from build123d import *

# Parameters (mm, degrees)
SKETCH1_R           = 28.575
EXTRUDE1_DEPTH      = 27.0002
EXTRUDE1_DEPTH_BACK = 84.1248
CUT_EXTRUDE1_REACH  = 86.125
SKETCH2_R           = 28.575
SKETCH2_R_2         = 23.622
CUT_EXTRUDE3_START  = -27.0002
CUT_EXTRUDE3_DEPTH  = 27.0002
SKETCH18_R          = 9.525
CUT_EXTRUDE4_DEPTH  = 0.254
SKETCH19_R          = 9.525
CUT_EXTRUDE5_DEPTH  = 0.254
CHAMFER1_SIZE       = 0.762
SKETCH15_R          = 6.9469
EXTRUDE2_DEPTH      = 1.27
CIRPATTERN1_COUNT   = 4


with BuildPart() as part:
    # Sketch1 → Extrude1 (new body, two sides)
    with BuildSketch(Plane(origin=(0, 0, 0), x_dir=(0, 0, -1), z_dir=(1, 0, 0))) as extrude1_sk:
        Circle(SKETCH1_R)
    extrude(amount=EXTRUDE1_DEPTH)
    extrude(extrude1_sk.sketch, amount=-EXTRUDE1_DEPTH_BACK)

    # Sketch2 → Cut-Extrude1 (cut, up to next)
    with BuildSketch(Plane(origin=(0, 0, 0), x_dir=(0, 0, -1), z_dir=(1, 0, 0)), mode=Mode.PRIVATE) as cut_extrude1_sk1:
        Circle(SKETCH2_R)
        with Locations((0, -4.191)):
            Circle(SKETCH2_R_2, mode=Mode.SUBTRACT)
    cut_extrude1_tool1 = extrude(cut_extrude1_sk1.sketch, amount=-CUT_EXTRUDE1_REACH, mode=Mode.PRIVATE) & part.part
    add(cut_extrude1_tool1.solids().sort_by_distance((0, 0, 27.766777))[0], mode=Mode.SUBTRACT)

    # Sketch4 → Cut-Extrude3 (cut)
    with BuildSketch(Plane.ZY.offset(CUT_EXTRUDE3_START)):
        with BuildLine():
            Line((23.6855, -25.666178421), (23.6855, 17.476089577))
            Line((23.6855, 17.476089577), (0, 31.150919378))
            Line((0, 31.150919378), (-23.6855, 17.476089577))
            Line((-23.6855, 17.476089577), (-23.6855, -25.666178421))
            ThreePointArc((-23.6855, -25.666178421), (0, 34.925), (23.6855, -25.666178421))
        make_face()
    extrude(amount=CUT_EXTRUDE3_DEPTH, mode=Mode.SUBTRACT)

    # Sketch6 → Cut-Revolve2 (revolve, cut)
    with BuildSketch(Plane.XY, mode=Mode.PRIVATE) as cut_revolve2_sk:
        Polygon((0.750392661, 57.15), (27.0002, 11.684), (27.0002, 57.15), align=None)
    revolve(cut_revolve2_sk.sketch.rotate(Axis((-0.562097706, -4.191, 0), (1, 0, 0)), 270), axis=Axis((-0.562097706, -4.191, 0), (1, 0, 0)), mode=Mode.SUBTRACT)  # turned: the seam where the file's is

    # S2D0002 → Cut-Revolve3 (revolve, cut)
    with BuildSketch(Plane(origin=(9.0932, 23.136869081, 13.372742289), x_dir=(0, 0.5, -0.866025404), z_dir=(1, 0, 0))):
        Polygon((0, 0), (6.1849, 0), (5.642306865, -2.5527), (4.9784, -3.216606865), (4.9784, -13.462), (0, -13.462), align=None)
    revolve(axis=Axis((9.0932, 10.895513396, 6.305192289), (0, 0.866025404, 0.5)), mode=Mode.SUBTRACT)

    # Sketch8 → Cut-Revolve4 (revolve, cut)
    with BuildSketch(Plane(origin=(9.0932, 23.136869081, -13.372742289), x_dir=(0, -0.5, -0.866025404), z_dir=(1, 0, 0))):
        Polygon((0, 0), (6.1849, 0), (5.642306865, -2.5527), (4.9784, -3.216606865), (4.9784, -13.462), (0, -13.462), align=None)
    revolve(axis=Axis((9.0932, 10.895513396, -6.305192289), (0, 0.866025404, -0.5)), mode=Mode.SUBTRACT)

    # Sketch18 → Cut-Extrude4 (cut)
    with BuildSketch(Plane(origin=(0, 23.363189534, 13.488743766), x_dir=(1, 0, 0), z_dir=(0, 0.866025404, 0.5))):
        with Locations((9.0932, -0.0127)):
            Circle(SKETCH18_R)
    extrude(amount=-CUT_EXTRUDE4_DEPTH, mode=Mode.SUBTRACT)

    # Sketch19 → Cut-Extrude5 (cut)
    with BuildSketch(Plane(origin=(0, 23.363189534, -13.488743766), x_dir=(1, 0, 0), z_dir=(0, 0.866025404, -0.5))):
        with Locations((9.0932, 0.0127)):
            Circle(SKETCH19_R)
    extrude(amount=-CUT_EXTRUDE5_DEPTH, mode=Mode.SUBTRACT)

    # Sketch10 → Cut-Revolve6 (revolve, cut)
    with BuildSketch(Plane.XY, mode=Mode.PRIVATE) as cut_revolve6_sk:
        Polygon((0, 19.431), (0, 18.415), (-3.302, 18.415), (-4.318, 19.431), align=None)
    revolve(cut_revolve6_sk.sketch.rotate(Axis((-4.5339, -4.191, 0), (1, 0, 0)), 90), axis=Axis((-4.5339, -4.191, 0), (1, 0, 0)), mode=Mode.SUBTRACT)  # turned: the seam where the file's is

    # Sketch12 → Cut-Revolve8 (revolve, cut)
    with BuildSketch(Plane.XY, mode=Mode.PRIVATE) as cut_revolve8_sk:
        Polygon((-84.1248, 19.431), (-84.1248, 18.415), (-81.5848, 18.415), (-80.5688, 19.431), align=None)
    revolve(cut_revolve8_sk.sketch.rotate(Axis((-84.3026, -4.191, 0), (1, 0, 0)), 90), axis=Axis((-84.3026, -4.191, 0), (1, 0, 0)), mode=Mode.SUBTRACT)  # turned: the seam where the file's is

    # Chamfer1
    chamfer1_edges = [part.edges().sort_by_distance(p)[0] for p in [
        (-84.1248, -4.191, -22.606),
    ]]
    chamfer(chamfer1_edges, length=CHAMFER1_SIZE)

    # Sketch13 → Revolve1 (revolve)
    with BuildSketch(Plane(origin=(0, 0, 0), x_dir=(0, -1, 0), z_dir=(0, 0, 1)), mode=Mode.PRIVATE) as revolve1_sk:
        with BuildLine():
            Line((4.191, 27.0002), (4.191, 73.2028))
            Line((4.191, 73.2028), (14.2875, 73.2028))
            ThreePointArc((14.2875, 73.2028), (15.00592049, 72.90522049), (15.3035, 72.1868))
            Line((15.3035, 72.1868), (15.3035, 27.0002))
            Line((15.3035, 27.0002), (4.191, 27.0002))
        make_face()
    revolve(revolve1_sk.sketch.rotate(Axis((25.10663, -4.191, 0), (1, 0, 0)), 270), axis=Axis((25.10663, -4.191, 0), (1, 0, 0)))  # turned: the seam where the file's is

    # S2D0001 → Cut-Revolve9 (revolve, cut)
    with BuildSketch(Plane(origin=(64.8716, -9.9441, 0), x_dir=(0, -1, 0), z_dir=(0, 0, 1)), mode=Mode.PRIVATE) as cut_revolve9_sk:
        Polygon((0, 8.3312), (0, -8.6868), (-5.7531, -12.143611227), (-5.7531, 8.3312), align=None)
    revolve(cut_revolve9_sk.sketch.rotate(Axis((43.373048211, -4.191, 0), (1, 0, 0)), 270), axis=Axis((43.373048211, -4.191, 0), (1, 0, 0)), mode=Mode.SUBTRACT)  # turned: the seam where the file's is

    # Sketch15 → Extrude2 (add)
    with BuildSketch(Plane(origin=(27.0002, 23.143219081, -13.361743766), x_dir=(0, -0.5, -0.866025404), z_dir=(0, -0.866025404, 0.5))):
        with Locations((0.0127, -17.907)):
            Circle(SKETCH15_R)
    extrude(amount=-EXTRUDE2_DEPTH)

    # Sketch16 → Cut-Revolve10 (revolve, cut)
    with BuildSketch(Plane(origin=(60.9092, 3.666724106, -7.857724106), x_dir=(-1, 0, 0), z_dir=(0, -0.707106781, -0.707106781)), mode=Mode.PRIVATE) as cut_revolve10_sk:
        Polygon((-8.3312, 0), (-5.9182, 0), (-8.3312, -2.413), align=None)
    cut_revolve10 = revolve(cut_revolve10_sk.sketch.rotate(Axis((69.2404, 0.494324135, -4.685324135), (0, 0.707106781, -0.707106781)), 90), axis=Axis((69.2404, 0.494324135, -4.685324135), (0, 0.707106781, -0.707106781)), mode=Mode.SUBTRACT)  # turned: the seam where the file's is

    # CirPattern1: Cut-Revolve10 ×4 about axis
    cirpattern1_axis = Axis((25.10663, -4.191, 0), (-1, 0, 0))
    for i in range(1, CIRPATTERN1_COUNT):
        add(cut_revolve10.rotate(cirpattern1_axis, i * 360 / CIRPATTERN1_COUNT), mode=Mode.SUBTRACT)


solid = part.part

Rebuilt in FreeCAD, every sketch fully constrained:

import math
import FreeCAD as App
import Part
import Sketcher

V = App.Vector
Q = App.Units.Quantity


def edges_at(feature, points):
    """Names of the edges that pass closest to the given points."""
    edges = feature.Shape.Edges
    near = lambda p: min(range(len(edges)), key=lambda i: edges[i].distToShape(Part.Vertex(*p))[0])
    return sorted({f"Edge{near(p) + 1}" for p in points})


def add_polygon(sketch, points):
    """Adds a closed chain of lines whose ends are joined by coincident constraints."""
    first, n = sketch.GeometryCount, len(points)
    for a, b in zip(points, points[1:] + points[:1]):
        sketch.addGeometry(Part.LineSegment(App.Vector(*a, 0), App.Vector(*b, 0)), False)
    for i in range(n):
        sketch.addConstraint(Sketcher.Constraint("Coincident", first + i, 2, first + (i + 1) % n, 1))

doc = App.newDocument("Part")
body = doc.addObject("PartDesign::Body", "Body")

# Sketch on YZ plane
sketch1 = doc.addObject("Sketcher::SketchObject", "Sketch")
body.addObject(sketch1)
sketch1.AttachmentSupport = (doc.YZ_Plane, [""])
sketch1.MapMode = "FlatFace"
sketch1.addGeometry(Part.Circle(V(0, 0, 0), V(0, 0, 1), 29), False)
sketch1.addConstraint([
    Sketcher.Constraint("Coincident", 0, 3, -1, 1),
    Sketcher.Constraint("Diameter", 0, Q("2.25 in")),
])
pad1 = doc.addObject("PartDesign::Pad", "Pad")
body.addObject(pad1)
pad1.Profile = sketch1
pad1.Type = "TwoLengths"
pad1.Length = Q("1.063 in")
pad1.Length2 = Q("3.312 in")

# Sketch on YZ plane
sketch2 = doc.addObject("Sketcher::SketchObject", "Sketch001")
body.addObject(sketch2)
sketch2.AttachmentSupport = (doc.YZ_Plane, [""])
sketch2.MapMode = "FlatFace"
sketch2.addGeometry([
    Part.Circle(V(0, 0, 0), V(0, 0, 1), 29),
    Part.Circle(V(-4, 0, 0), V(0, 0, 1), 24),
], False)
sketch2.addConstraint([
    Sketcher.Constraint("Coincident", 0, 3, -1, 1),
    Sketcher.Constraint("PointOnObject", 1, 3, -1),
    Sketcher.Constraint("Diameter", 0, Q("2.25 in")),
    Sketcher.Constraint("Diameter", 1, Q("1.86 in")),
    Sketcher.Constraint("DistanceX", 1, 3, -1, 1, Q("0.165 in")),
])
pocket1 = doc.addObject("PartDesign::Pocket", "Pocket")
body.addObject(pocket1)
pocket1.Profile = sketch2
pocket1.Type = "UpToFirst"

# Sketch on YZ plane
sketch3 = doc.addObject("Sketcher::SketchObject", "Sketch002")
body.addObject(sketch3)
sketch3.AttachmentSupport = (doc.YZ_Plane, [""])
sketch3.MapMode = "FlatFace"
sketch3.AttachmentOffset = App.Placement(V(0, 0, 1.063 * 25.4), App.Rotation())
sketch3.addGeometry([
    Part.LineSegment(V(17, 24, 0), V(-26, 24, 0)),  # 0
    Part.ArcOfCircle(Part.Circle(V(0, 0, 0), V(0, 0, 1), 35), math.radians(-137), math.radians(137)),  # 1
    Part.LineSegment(V(-26, -24, 0), V(17, -24, 0)),  # 2
    Part.LineSegment(V(17, -24, 0), V(31, 0, 0)),  # 3
    Part.LineSegment(V(31, 0, 0), V(17, 24, 0)),  # 4
], False)
sketch3.addConstraint([
    Sketcher.Constraint("Coincident", 0, 2, 1, 2),
    Sketcher.Constraint("Coincident", 1, 1, 2, 1),
    Sketcher.Constraint("Coincident", 2, 2, 3, 1),
    Sketcher.Constraint("Coincident", 3, 2, 4, 1),
    Sketcher.Constraint("Coincident", 4, 2, 0, 1),
    Sketcher.Constraint("Horizontal", 0),
    Sketcher.Constraint("Horizontal", 2),
    Sketcher.Constraint("Coincident", 1, 3, -1, 1),
    Sketcher.Constraint("Symmetric", 2, 2, 4, 2, -1),
    Sketcher.Constraint("PointOnObject", 3, 2, -1),
    Sketcher.Constraint("Angle", 3, Q("60 deg")),
    Sketcher.Constraint("Radius", 1, Q("1.375 in")),
    Sketcher.Constraint("DistanceY", 1, 1, 0, 2, Q("1.865 in")),
    Sketcher.Constraint("DistanceX", 0, 2, 0, 1, 43.142268),
])
pocket2 = doc.addObject("PartDesign::Pocket", "Pocket001")
body.addObject(pocket2)
pocket2.Profile = sketch3
pocket2.Length = Q("1.063 in")

# Sketch on XY plane
sketch4 = doc.addObject("Sketcher::SketchObject", "Sketch003")
body.addObject(sketch4)
sketch4.AttachmentSupport = (doc.XY_Plane, [""])
sketch4.MapMode = "FlatFace"
add_polygon(sketch4, [(1, 57), (27, 12), (27, 57)])  # lines 0-2
sketch4.addGeometry(Part.LineSegment(V(1, -4, 0), V(27, -4, 0)), True)  # axis
sketch4.addConstraint([
    Sketcher.Constraint("Vertical", 1),
    Sketcher.Constraint("Horizontal", 2),
    Sketcher.Constraint("Horizontal", 3),
    Sketcher.Constraint("Vertical", 2, 2, 3, 1),
    Sketcher.Constraint("Vertical", 1, 2, 3, 2),
    Sketcher.Constraint("Angle", 0, Q("-60 deg")),
    Sketcher.Constraint("DistanceY", 1, 1, 1, 2, Q("1.79 in")),
    Sketcher.Constraint("DistanceY", -1, 1, 0, 2, Q("0.46 in")),
    Sketcher.Constraint("DistanceX", -1, 1, 0, 2, Q("1.063 in")),
    Sketcher.Constraint("DistanceY", 3, 1, -1, 1, Q("0.165 in")),
])
groove = doc.addObject("PartDesign::Groove", "Groove")
body.addObject(groove)
groove.Profile = sketch4
groove.ReferenceAxis = (sketch4, ["Axis0"])
groove.Angle = 360

# Sketch on YZ plane
sketch5 = doc.addObject("Sketcher::SketchObject", "Sketch004")
body.addObject(sketch5)
sketch5.AttachmentSupport = (doc.YZ_Plane, [""])
sketch5.MapMode = "FlatFace"
sketch5.AttachmentOffset = App.Placement(V(0, 0, 0.358 * 25.4), App.Rotation())
add_polygon(sketch5, [(26.2, 8), (23.1, 13.4), (11.5, 6.6), (14, 2.3), (22.8, 7.5), (23.7, 7.2)])  # lines 0-5
sketch5.addGeometry(Part.LineSegment(V(11.5, 6.6, 0), V(23.1, 13.4, 0)), True)  # axis
sketch5.addConstraint([
    Sketcher.Constraint("Coincident", 6, 1, 1, 2),
    Sketcher.Constraint("Coincident", 6, 2, 0, 2),
    Sketcher.Constraint("Perpendicular", 0, 1),
    Sketcher.Constraint("Perpendicular", 1, 2),
    Sketcher.Constraint("Perpendicular", 2, 3),
    Sketcher.Constraint("Angle", 0, Q("120 deg")),
    Sketcher.Constraint("Angle", 4, Q("-15 deg")),
    Sketcher.Constraint("Angle", 5, Q("18 deg")),
    Sketcher.Constraint("Distance", 1, Q("0.53 in")),
    Sketcher.Constraint("Distance", 2, Q("0.196 in")),
    Sketcher.Constraint("Distance", 0, Q("0.2435 in")),
    Sketcher.Constraint("DistanceX", 4, 2, 5, 2, 2.482),
    Sketcher.Constraint("DistanceX", -1, 1, 0, 2, 23.136869),
    Sketcher.Constraint("DistanceY", -1, 1, 2, 2, 2.330321),
])
groove2 = doc.addObject("PartDesign::Groove", "Groove001")
body.addObject(groove2)
groove2.Profile = sketch5
groove2.ReferenceAxis = (sketch5, ["Axis0"])
groove2.Angle = 360

# Sketch on YZ plane
sketch6 = doc.addObject("Sketcher::SketchObject", "Sketch005")
body.addObject(sketch6)
sketch6.AttachmentSupport = (doc.YZ_Plane, [""])
sketch6.MapMode = "FlatFace"
sketch6.AttachmentOffset = App.Placement(V(0, 0, 0.358 * 25.4), App.Rotation())
add_polygon(sketch6, [(20, -18.7), (23.1, -13.4), (11.5, -6.6), (9, -11), (17.9, -16.1), (18.1, -17)])  # lines 0-5
sketch6.addGeometry(Part.LineSegment(V(11.5, -6.6, 0), V(23.1, -13.4, 0)), True)  # axis
sketch6.addConstraint([
    Sketcher.Constraint("Coincident", 6, 1, 1, 2),
    Sketcher.Constraint("Coincident", 6, 2, 0, 2),
    Sketcher.Constraint("Perpendicular", 0, 1),
    Sketcher.Constraint("Perpendicular", 1, 2),
    Sketcher.Constraint("Perpendicular", 2, 3),
    Sketcher.Constraint("Angle", 0, Q("60 deg")),
    Sketcher.Constraint("Angle", 4, Q("-75 deg")),
    Sketcher.Constraint("Angle", 5, Q("-42 deg")),
    Sketcher.Constraint("Distance", 1, Q("0.53 in")),
    Sketcher.Constraint("Distance", 2, Q("0.196 in")),
    Sketcher.Constraint("Distance", 0, Q("0.2435 in")),
    Sketcher.Constraint("Distance", 5, 2.609729),
    Sketcher.Constraint("DistanceX", -1, 1, 0, 2, 23.136869),
    Sketcher.Constraint("DistanceY", 3, 2, -1, 1, 16.07586),
])
groove3 = doc.addObject("PartDesign::Groove", "Groove002")
body.addObject(groove3)
groove3.Profile = sketch6
groove3.ReferenceAxis = (sketch6, ["Axis0"])
groove3.Angle = 360

# Sketch on an angled plane
sketch7 = doc.addObject("Sketcher::SketchObject", "Sketch006")
body.addObject(sketch7)
sketch7.Placement = App.Placement(V(0, 23.36319, 13.488744), App.Rotation(V(1, 0, 0), V(0, 0.5, -0.866025404), V(0, 0.866025404, 0.5), "ZXY"))
sketch7.addGeometry(Part.Circle(V(9, 0, 0), V(0, 0, 1), 10), False)
sketch7.addConstraint([
    Sketcher.Constraint("Diameter", 0, Q("0.75 in")),
    Sketcher.Constraint("DistanceX", -1, 1, 0, 3, Q("0.358 in")),
    Sketcher.Constraint("DistanceY", 0, 3, -1, 1, Q("0.0005 in")),
])
pocket3 = doc.addObject("PartDesign::Pocket", "Pocket002")
body.addObject(pocket3)
pocket3.Profile = sketch7
pocket3.Length = Q("0.01 in")

# Sketch on an angled plane
sketch8 = doc.addObject("Sketcher::SketchObject", "Sketch007")
body.addObject(sketch8)
sketch8.Placement = App.Placement(V(0, 23.36319, -13.488744), App.Rotation(V(1, 0, 0), V(0, -0.5, -0.866025404), V(0, 0.866025404, -0.5), "ZXY"))
sketch8.addGeometry(Part.Circle(V(9, 0, 0), V(0, 0, 1), 10), False)
sketch8.addConstraint([
    Sketcher.Constraint("Diameter", 0, Q("0.75 in")),
    Sketcher.Constraint("DistanceX", -1, 1, 0, 3, Q("0.358 in")),
    Sketcher.Constraint("DistanceY", -1, 1, 0, 3, Q("0.0005 in")),
])
pocket4 = doc.addObject("PartDesign::Pocket", "Pocket003")
body.addObject(pocket4)
pocket4.Profile = sketch8
pocket4.Length = Q("0.01 in")

# Sketch on XY plane
sketch9 = doc.addObject("Sketcher::SketchObject", "Sketch008")
body.addObject(sketch9)
sketch9.AttachmentSupport = (doc.XY_Plane, [""])
sketch9.MapMode = "FlatFace"
add_polygon(sketch9, [(0, 18.4), (0, 19.4), (-4.3, 19.4), (-3.3, 18.4)])  # lines 0-3
sketch9.addGeometry(Part.LineSegment(V(-4.3, -4.2, 0), V(0, -4.2, 0)), True)  # axis
sketch9.addConstraint([
    Sketcher.Constraint("Vertical", 0),
    Sketcher.Constraint("Horizontal", 1),
    Sketcher.Constraint("Horizontal", 3),
    Sketcher.Constraint("Horizontal", 4),
    Sketcher.Constraint("PointOnObject", 0, 2, -2),
    Sketcher.Constraint("PointOnObject", 4, 2, -2),
    Sketcher.Constraint("Vertical", 1, 2, 4, 1),
    Sketcher.Constraint("Angle", 2, Q("-45 deg")),
    Sketcher.Constraint("DistanceX", 1, 2, 1, 1, Q("0.17 in")),
    Sketcher.Constraint("DistanceX", 3, 1, 3, 2, Q("0.13 in")),
    Sketcher.Constraint("DistanceY", 4, 1, 2, 2, Q("0.89 in")),
    Sketcher.Constraint("DistanceY", -1, 1, 0, 2, Q("0.765 in")),
])
groove4 = doc.addObject("PartDesign::Groove", "Groove003")
body.addObject(groove4)
groove4.Profile = sketch9
groove4.ReferenceAxis = (sketch9, ["Axis0"])
groove4.Angle = 360

# Sketch on XY plane
sketch10 = doc.addObject("Sketcher::SketchObject", "Sketch009")
body.addObject(sketch10)
sketch10.AttachmentSupport = (doc.XY_Plane, [""])
sketch10.MapMode = "FlatFace"
add_polygon(sketch10, [(-84.1, 19.4), (-84.1, 18.4), (-81.6, 18.4), (-80.6, 19.4)])  # lines 0-3
sketch10.addGeometry(Part.LineSegment(V(-84.1, -4.2, 0), V(-80.6, -4.2, 0)), True)  # axis
sketch10.addConstraint([
    Sketcher.Constraint("Vertical", 0),
    Sketcher.Constraint("Horizontal", 1),
    Sketcher.Constraint("Horizontal", 3),
    Sketcher.Constraint("Horizontal", 4),
    Sketcher.Constraint("Vertical", 3, 2, 4, 1),
    Sketcher.Constraint("Vertical", 2, 2, 4, 2),
    Sketcher.Constraint("DistanceX", 1, 1, 1, 2, Q("0.1 in")),
    Sketcher.Constraint("Angle", 2, Q("45 deg")),
    Sketcher.Constraint("DistanceX", 3, 2, 3, 1, Q("0.14 in")),
    Sketcher.Constraint("DistanceY", 4, 1, 0, 2, Q("0.89 in")),
    Sketcher.Constraint("DistanceX", 0, 2, -1, 1, Q("3.312 in")),
    Sketcher.Constraint("DistanceY", -1, 1, 0, 2, Q("0.725 in")),
])
groove5 = doc.addObject("PartDesign::Groove", "Groove004")
body.addObject(groove5)
groove5.Profile = sketch10
groove5.ReferenceAxis = (sketch10, ["Axis0"])
groove5.Angle = 360
doc.recompute()

chamfer = doc.addObject("PartDesign::Chamfer", "Chamfer")
body.addObject(chamfer)
chamfer.Base = (groove5, edges_at(groove5, [(-84.125, -4.191, -22.606)]))
chamfer.Size = Q("0.03 in")

# Sketch on XY plane
sketch11 = doc.addObject("Sketcher::SketchObject", "Sketch010")
body.addObject(sketch11)
sketch11.AttachmentSupport = (doc.XY_Plane, [""])
sketch11.MapMode = "FlatFace"
sketch11.addGeometry([
    Part.LineSegment(V(73.2, -4.2, 0), V(27, -4.2, 0)),  # 0
    Part.LineSegment(V(27, -4.2, 0), V(27, -15.3, 0)),  # 1
    Part.LineSegment(V(27, -15.3, 0), V(72.2, -15.3, 0)),  # 2
    Part.ArcOfCircle(Part.Circle(V(72.2, -14.3, 0), V(0, 0, 1), 1), math.radians(-90), math.radians(0)),  # 3
    Part.LineSegment(V(73.2, -14.3, 0), V(73.2, -4.2, 0)),  # 4
], False)
sketch11.addGeometry(Part.LineSegment(V(27, -4.2, 0), V(73.2, -4.2, 0)), True)  # axis
sketch11.addConstraint([
    Sketcher.Constraint("Coincident", 0, 2, 1, 1),
    Sketcher.Constraint("Coincident", 1, 2, 2, 1),
    Sketcher.Constraint("Tangent", 2, 2, 3, 1),
    Sketcher.Constraint("Tangent", 3, 2, 4, 1),
    Sketcher.Constraint("Coincident", 4, 2, 0, 1),
    Sketcher.Constraint("Horizontal", 0),
    Sketcher.Constraint("Vertical", 1),
    Sketcher.Constraint("Horizontal", 2),
    Sketcher.Constraint("Vertical", 4),
    Sketcher.Constraint("Horizontal", 5),
    Sketcher.Constraint("Coincident", 5, 1, 0, 2),
    Sketcher.Constraint("Vertical", 3, 2, 5, 2),
    Sketcher.Constraint("Radius", 3, Q("0.04 in")),
    Sketcher.Constraint("DistanceX", 0, 2, 0, 1, Q("1.819 in")),
    Sketcher.Constraint("DistanceY", 1, 2, 1, 1, Q("0.4375 in")),
    Sketcher.Constraint("DistanceX", -1, 1, 3, 3, Q("2.842 in")),
    Sketcher.Constraint("DistanceY", 3, 3, -1, 1, Q("0.5625 in")),
])
revolution = doc.addObject("PartDesign::Revolution", "Revolution")
body.addObject(revolution)
revolution.Profile = sketch11
revolution.ReferenceAxis = (sketch11, ["Axis0"])
revolution.Angle = 360

# Sketch on XY plane
sketch12 = doc.addObject("Sketcher::SketchObject", "Sketch011")
body.addObject(sketch12)
sketch12.AttachmentSupport = (doc.XY_Plane, [""])
sketch12.MapMode = "FlatFace"
add_polygon(sketch12, [(56, -10), (73, -10), (73, -4), (53, -4)])  # lines 0-3
sketch12.addGeometry(Part.LineSegment(V(53, -4, 0), V(73, -4, 0)), True)  # axis
sketch12.addConstraint([
    Sketcher.Constraint("Horizontal", 0),
    Sketcher.Constraint("Vertical", 1),
    Sketcher.Constraint("Horizontal", 2),
    Sketcher.Constraint("Horizontal", 4),
    Sketcher.Constraint("Coincident", 4, 1, 2, 2),
    Sketcher.Constraint("Vertical", 0, 2, 4, 2),
    Sketcher.Constraint("Angle", 3, Q("-59 deg")),
    Sketcher.Constraint("DistanceX", 0, 1, 0, 2, Q("0.67 in")),
    Sketcher.Constraint("DistanceY", 1, 1, 1, 2, Q("0.2265 in")),
    Sketcher.Constraint("DistanceX", -1, 1, 0, 2, Q("2.882 in")),
    Sketcher.Constraint("DistanceY", 1, 2, -1, 1, Q("0.165 in")),
])
groove6 = doc.addObject("PartDesign::Groove", "Groove005")
body.addObject(groove6)
groove6.Profile = sketch12
groove6.ReferenceAxis = (sketch12, ["Axis0"])
groove6.Angle = 360

# Sketch on an angled plane
sketch13 = doc.addObject("Sketcher::SketchObject", "Sketch012")
body.addObject(sketch13)
sketch13.Placement = App.Placement(V(27.0002, 23.143219, -13.361744), App.Rotation(V(0, -0.5, -0.866025404), V(1, 0, 0), V(0, -0.866025404, 0.5), "ZXY"))
sketch13.addGeometry(Part.Circle(V(0, -18, 0), V(0, 0, 1), 7), False)
sketch13.addConstraint([
    Sketcher.Constraint("Diameter", 0, Q("0.547 in")),
    Sketcher.Constraint("DistanceY", 0, 3, -1, 1, Q("0.705 in")),
    Sketcher.Constraint("DistanceX", -1, 1, 0, 3, Q("0.0005 in")),
])
pad2 = doc.addObject("PartDesign::Pad", "Pad001")
body.addObject(pad2)
pad2.Profile = sketch13
pad2.Length = Q("0.05 in")
pad2.Reversed = True

# Sketch on an angled plane
sketch14 = doc.addObject("Sketcher::SketchObject", "Sketch013")
body.addObject(sketch14)
sketch14.Placement = App.Placement(V(60.9092, 3.666724, -7.857724), App.Rotation(V(-1, 0, 0), V(0, 0.707106781, -0.707106781), V(0, -0.707106781, -0.707106781), "ZXY"))
add_polygon(sketch14, [(-5.9, 0), (-8.3, 0), (-8.3, -2.4)])  # lines 0-2
sketch14.addGeometry(Part.LineSegment(V(-8.3, -2.4, 0), V(-8.3, 0, 0)), True)  # axis
sketch14.addConstraint([
    Sketcher.Constraint("Horizontal", 0),
    Sketcher.Constraint("Vertical", 1),
    Sketcher.Constraint("Vertical", 3),
    Sketcher.Constraint("Coincident", 3, 1, 1, 2),
    Sketcher.Constraint("PointOnObject", 0, 2, -1),
    Sketcher.Constraint("PointOnObject", 3, 2, -1),
    Sketcher.Constraint("Equal", 0, 1),
    Sketcher.Constraint("DistanceX", 0, 2, 0, 1, Q("0.095 in")),
    Sketcher.Constraint("DistanceX", 0, 2, -1, 1, Q("0.328 in")),
])
groove7 = doc.addObject("PartDesign::Groove", "Groove006")
body.addObject(groove7)
groove7.Profile = sketch14
groove7.ReferenceAxis = (sketch14, ["Axis0"])
groove7.Angle = 360
doc.recompute()

datumline = doc.addObject("PartDesign::Line", "DatumLine")
body.addObject(datumline)
datumline.Placement = App.Placement(V(0, -4.191, 0), App.Rotation(V(0, 0, 1), V(-1, 0, 0)))
polarpattern = doc.addObject("PartDesign::PolarPattern", "PolarPattern")
body.addObject(polarpattern)
polarpattern.Originals = [groove7]
polarpattern.Axis = (datumline, [""])
polarpattern.Angle = 360
polarpattern.Occurrences = 4
body.Tip = polarpattern

doc.recompute()
